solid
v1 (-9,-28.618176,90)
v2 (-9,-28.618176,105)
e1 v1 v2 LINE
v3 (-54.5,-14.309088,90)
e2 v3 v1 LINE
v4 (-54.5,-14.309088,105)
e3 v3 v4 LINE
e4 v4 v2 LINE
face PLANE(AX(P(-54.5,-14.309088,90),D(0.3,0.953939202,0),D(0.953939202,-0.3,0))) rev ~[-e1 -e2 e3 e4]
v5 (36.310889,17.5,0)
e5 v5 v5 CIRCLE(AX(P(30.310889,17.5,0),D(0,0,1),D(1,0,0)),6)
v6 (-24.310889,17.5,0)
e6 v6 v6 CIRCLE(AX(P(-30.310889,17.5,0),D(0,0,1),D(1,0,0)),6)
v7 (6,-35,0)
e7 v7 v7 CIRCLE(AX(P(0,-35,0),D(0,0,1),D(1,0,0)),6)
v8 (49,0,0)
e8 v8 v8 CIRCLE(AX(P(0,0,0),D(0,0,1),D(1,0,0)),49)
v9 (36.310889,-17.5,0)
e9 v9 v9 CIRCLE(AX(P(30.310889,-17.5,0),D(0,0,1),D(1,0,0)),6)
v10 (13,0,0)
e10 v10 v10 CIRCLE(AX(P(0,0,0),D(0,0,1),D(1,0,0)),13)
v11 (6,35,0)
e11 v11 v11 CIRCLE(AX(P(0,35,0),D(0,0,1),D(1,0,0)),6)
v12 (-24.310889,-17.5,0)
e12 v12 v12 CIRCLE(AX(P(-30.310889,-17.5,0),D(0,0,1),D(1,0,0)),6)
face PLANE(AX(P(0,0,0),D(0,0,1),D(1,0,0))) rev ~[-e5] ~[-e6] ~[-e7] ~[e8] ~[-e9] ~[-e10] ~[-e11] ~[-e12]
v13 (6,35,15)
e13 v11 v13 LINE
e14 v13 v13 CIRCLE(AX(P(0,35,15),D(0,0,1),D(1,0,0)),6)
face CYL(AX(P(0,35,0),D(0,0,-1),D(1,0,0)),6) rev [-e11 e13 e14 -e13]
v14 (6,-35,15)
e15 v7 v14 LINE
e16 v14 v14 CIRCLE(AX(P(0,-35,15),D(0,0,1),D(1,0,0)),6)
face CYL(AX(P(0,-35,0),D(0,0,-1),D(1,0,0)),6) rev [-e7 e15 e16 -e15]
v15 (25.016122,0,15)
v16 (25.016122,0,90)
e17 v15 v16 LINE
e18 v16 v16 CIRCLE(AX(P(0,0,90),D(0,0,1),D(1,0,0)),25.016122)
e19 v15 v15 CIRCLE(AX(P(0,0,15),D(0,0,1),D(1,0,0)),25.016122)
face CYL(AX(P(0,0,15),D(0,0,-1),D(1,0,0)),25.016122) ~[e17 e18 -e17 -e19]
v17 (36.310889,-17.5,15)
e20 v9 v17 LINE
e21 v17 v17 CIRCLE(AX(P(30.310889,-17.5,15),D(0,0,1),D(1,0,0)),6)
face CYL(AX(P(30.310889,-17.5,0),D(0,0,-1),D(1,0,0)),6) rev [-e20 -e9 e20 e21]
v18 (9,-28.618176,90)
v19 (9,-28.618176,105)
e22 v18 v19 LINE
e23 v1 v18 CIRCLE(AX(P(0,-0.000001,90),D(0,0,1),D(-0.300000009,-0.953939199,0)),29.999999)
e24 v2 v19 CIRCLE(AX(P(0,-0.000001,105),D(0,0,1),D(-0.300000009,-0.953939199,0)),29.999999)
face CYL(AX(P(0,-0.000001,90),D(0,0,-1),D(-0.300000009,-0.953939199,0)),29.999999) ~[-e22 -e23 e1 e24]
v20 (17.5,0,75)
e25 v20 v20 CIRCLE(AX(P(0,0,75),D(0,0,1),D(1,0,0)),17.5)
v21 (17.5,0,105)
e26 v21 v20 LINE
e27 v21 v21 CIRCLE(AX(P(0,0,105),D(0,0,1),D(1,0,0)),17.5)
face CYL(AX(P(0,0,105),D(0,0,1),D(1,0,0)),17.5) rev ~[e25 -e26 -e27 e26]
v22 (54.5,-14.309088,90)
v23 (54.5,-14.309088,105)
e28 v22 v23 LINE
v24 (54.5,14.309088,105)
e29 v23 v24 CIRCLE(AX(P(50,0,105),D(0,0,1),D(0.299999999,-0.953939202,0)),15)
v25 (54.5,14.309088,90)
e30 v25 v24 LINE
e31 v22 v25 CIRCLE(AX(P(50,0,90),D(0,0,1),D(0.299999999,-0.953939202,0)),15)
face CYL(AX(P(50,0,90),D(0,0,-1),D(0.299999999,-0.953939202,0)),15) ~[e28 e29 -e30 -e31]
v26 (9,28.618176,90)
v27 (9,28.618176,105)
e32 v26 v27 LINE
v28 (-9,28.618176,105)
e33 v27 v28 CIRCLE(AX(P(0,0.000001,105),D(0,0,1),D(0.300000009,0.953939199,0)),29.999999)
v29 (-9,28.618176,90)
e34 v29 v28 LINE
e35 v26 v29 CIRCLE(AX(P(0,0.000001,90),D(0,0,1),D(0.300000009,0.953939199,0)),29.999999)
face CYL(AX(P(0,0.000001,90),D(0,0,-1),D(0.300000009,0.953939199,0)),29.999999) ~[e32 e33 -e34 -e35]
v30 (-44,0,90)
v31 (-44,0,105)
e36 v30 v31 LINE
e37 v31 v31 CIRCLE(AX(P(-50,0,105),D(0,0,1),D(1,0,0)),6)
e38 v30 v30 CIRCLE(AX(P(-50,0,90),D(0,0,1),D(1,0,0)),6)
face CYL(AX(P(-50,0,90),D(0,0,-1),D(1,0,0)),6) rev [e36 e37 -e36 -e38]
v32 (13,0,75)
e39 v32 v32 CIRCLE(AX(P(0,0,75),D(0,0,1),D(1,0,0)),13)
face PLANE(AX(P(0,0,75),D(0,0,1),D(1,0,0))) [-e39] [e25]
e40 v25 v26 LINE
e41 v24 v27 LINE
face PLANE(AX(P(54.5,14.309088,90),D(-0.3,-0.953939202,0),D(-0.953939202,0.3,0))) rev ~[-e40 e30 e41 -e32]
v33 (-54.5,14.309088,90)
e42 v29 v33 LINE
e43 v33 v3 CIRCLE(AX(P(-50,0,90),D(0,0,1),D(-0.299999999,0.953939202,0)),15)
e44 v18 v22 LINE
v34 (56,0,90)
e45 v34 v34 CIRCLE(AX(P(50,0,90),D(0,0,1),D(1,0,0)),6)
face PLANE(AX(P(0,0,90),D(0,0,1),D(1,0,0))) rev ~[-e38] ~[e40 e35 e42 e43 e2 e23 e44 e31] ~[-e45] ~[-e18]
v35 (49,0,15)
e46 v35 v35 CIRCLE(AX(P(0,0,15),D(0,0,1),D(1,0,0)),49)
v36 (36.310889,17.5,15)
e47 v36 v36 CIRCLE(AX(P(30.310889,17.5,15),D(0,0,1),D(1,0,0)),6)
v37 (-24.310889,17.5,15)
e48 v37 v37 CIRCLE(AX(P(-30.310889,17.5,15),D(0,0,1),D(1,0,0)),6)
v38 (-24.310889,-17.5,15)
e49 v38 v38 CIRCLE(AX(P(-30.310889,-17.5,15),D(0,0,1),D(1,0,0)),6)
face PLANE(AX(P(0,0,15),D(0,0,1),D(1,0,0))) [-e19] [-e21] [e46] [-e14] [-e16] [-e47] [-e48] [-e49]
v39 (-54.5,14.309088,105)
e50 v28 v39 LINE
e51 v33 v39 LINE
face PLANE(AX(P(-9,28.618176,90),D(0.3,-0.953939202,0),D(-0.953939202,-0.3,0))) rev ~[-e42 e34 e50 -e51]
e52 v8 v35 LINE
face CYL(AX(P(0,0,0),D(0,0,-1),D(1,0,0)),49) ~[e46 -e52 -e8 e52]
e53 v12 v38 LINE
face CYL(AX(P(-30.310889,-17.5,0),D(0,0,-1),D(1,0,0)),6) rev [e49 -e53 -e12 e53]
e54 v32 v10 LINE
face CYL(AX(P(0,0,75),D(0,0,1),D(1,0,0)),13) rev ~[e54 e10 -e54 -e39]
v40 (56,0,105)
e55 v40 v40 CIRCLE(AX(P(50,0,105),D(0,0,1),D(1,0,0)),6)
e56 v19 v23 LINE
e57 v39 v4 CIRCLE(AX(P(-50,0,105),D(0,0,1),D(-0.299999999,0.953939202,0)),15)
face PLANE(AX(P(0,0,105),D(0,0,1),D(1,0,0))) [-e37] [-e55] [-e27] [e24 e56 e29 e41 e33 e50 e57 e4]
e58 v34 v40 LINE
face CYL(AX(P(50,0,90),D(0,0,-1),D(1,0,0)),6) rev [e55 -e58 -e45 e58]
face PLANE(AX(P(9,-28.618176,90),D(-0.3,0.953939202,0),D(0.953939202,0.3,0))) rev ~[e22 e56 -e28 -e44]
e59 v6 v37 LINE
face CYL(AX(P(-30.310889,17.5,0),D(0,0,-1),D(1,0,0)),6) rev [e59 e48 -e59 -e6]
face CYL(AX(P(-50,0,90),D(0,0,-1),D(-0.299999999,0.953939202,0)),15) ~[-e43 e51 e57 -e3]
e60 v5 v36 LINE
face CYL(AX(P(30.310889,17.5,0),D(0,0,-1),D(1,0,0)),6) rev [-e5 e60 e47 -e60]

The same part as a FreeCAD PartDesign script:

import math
import FreeCAD as App
import Part
import Sketcher

V = App.Vector
Q = App.Units.Quantity

doc = App.newDocument("Part")
params = doc.addObject("Spreadsheet::Sheet", "Params")
for row, (alias, value) in enumerate([
    ("sketch1_diameter", "98 mm"),
    ("sketch1_diameter2", "12 mm"),
    ("pad1_length", "15 mm"),
    ("pad2_length", "75 mm"),
    ("sketch3_diameter", "12 mm"),
    ("sketch3_radius", "15 mm"),
    ("sketch3_radius2", "29.999999 mm"),
    ("pad3_length", "15 mm"),
    ("sketch4_diameter", "35 mm"),
    ("pad4_length", "30 mm"),
    ("sketch5_diameter", "26 mm"),
    ("pad5_length", "150 mm"),
], start=1):
    params.set(f"A{row}", alias)
    params.set(f"B{row}", "=" + value)
    params.setAlias(f"B{row}", alias)

body = doc.addObject("PartDesign::Body", "Body")

sketch1 = body.newObject("Sketcher::SketchObject", "Sketch")
sketch1.AttachmentSupport = (doc.getObject("XY_Plane"), [""])
sketch1.MapMode = "FlatFace"
sketch1.addGeometry(Part.Circle(V(0, 0, 0), V(0, 0, 1), 49), False)
sketch1.addGeometry(Part.Circle(V(0, -35, 0), V(0, 0, 1), 6), False)
sketch1.addGeometry(Part.Circle(V(-30.310889, -17.5, 0), V(0, 0, 1), 6), False)
sketch1.addGeometry(Part.Circle(V(30.310889, -17.5, 0), V(0, 0, 1), 6), False)
sketch1.addGeometry(Part.Circle(V(-30.310889, 17.5, 0), V(0, 0, 1), 6), False)
sketch1.addGeometry(Part.Circle(V(0, 35, 0), V(0, 0, 1), 6), False)
sketch1.addGeometry(Part.Circle(V(30.310889, 17.5, 0), V(0, 0, 1), 6), False)
sketch1.addConstraint(Sketcher.Constraint("Coincident", 0, 3, -1, 1))
sketch1.addConstraint(Sketcher.Constraint("Equal", 1, 2))
sketch1.addConstraint(Sketcher.Constraint("Equal", 2, 3))
sketch1.addConstraint(Sketcher.Constraint("Equal", 3, 4))
sketch1.addConstraint(Sketcher.Constraint("Equal", 4, 5))
sketch1.addConstraint(Sketcher.Constraint("Equal", 5, 6))
sketch1.addConstraint(Sketcher.Constraint("Symmetric", 3, 3, 4, 3, -1, 1))
sketch1.addConstraint(Sketcher.Constraint("Symmetric", 1, 3, 5, 3, -1, 1))
sketch1.addConstraint(Sketcher.Constraint("Symmetric", 2, 3, 6, 3, -1, 1))
sketch1.addConstraint(Sketcher.Constraint("Symmetric", 2, 3, 3, 3, -2))
sketch1.addConstraint(Sketcher.Constraint("PointOnObject", 1, 3, -2))
sketch1.addConstraint(Sketcher.Constraint("Diameter", 0, Q("98 mm")))
sketch1.addConstraint(Sketcher.Constraint("Diameter", 1, Q("12 mm")))
sketch1.addConstraint(Sketcher.Constraint("DistanceY", 1, 3, -1, 1, Q("35 mm")))
sketch1.addConstraint(Sketcher.Constraint("DistanceY", 2, 3, 4, 3, Q("35 mm")))
sketch1.addConstraint(Sketcher.Constraint("DistanceX", 2, 3, -1, 1, Q("30.310889 mm")))
sketch1.setExpression("Constraints[11]", "Params.sketch1_diameter")
sketch1.setExpression("Constraints[12]", "Params.sketch1_diameter2")
pad1 = body.newObject("PartDesign::Pad", "Pad")
pad1.Profile = sketch1
pad1.setExpression("Length", "Params.pad1_length")

sketch2 = body.newObject("Sketcher::SketchObject", "Sketch001")
sketch2.AttachmentSupport = (doc.getObject("XY_Plane"), [""])
sketch2.MapMode = "FlatFace"
sketch2.AttachmentOffset = App.Placement(V(0, 0, 15), App.Rotation())
sketch2.addGeometry(Part.Circle(V(0, 0, 0), V(0, 0, 1), 25.016122), False)
sketch2.addConstraint(Sketcher.Constraint("Coincident", 0, 3, -1, 1))
sketch2.addConstraint(Sketcher.Constraint("Diameter", 0, Q("50.032244 mm")))
pad2 = body.newObject("PartDesign::Pad", "Pad001")
pad2.Profile = sketch2
pad2.setExpression("Length", "Params.pad2_length")

sketch3 = body.newObject("Sketcher::SketchObject", "Sketch002")
sketch3.AttachmentSupport = (doc.getObject("XY_Plane"), [""])
sketch3.MapMode = "FlatFace"
sketch3.AttachmentOffset = App.Placement(V(0, 0, 90), App.Rotation())
sketch3.addGeometry(Part.LineSegment(V(9, -28.618176, 0), V(54.5, -14.309088, 0)), False)
sketch3.addGeometry(Part.ArcOfCircle(Part.Circle(V(50, 0, 0), V(0, 0, 1), 15), math.radians(-72.542397), math.radians(72.542397)), False)
sketch3.addGeometry(Part.LineSegment(V(54.5, 14.309088, 0), V(9, 28.618176, 0)), False)
sketch3.addGeometry(Part.ArcOfCircle(Part.Circle(V(0, 0.000001, 0), V(0, 0, 1), 29.999999), math.radians(72.542396), math.radians(107.457604)), False)
sketch3.addGeometry(Part.LineSegment(V(-9, 28.618176, 0), V(-54.5, 14.309088, 0)), False)
sketch3.addGeometry(Part.ArcOfCircle(Part.Circle(V(-50, 0, 0), V(0, 0, 1), 15), math.radians(107.457603), math.radians(252.542397)), False)
sketch3.addGeometry(Part.LineSegment(V(-54.5, -14.309088, 0), V(-9, -28.618176, 0)), False)
sketch3.addGeometry(Part.ArcOfCircle(Part.Circle(V(0, -0.000001, 0), V(0, 0, 1), 29.999999), math.radians(-107.457604), math.radians(-72.542396)), False)
sketch3.addGeometry(Part.Circle(V(-50, 0, 0), V(0, 0, 1), 6), False)
sketch3.addGeometry(Part.Circle(V(50, 0, 0), V(0, 0, 1), 6), False)
sketch3.addConstraint(Sketcher.Constraint("Tangent", 0, 2, 1, 1))
sketch3.addConstraint(Sketcher.Constraint("Tangent", 1, 2, 2, 1))
sketch3.addConstraint(Sketcher.Constraint("Tangent", 2, 2, 3, 1))
sketch3.addConstraint(Sketcher.Constraint("Tangent", 3, 2, 4, 1))
sketch3.addConstraint(Sketcher.Constraint("Tangent", 4, 2, 5, 1))
sketch3.addConstraint(Sketcher.Constraint("Tangent", 5, 2, 6, 1))
sketch3.addConstraint(Sketcher.Constraint("Tangent", 6, 2, 7, 1))
sketch3.addConstraint(Sketcher.Constraint("Tangent", 7, 2, 0, 1))
sketch3.addConstraint(Sketcher.Constraint("Coincident", 3, 3, -1, 1))
sketch3.addConstraint(Sketcher.Constraint("Coincident", 7, 3, -1, 1))
sketch3.addConstraint(Sketcher.Constraint("Coincident", 8, 3, 5, 3))
sketch3.addConstraint(Sketcher.Constraint("Coincident", 9, 3, 1, 3))
sketch3.addConstraint(Sketcher.Constraint("Equal", 1, 5))
sketch3.addConstraint(Sketcher.Constraint("Equal", 3, 7))
sketch3.addConstraint(Sketcher.Constraint("Equal", 8, 9))
sketch3.addConstraint(Sketcher.Constraint("Symmetric", 1, 3, 5, 3, -1, 1))
sketch3.addConstraint(Sketcher.Constraint("PointOnObject", 1, 3, -1))
sketch3.addConstraint(Sketcher.Constraint("Diameter", 8, Q("12 mm")))
sketch3.addConstraint(Sketcher.Constraint("Radius", 1, Q("15 mm")))
sketch3.addConstraint(Sketcher.Constraint("Radius", 3, Q("29.999999 mm")))
sketch3.addConstraint(Sketcher.Constraint("DistanceX", -1, 1, 1, 3, Q("50 mm")))
sketch3.setExpression("Constraints[17]", "Params.sketch3_diameter")
sketch3.setExpression("Constraints[18]", "Params.sketch3_radius")
sketch3.setExpression("Constraints[19]", "Params.sketch3_radius2")
pad3 = body.newObject("PartDesign::Pad", "Pad002")
pad3.Profile = sketch3
pad3.setExpression("Length", "Params.pad3_length")
body2 = doc.addObject("PartDesign::Body", "Body001")

sketch4 = body2.newObject("Sketcher::SketchObject", "Sketch003")
sketch4.AttachmentSupport = (doc.getObject("XY_Plane001"), [""])
sketch4.MapMode = "FlatFace"
sketch4.AttachmentOffset = App.Placement(V(0, 0, 105), App.Rotation())
sketch4.addGeometry(Part.Circle(V(0, 0, 0), V(0, 0, 1), 17.5), False)
sketch4.addConstraint(Sketcher.Constraint("Coincident", 0, 3, -1, 1))
sketch4.addConstraint(Sketcher.Constraint("Diameter", 0, Q("35 mm")))
sketch4.setExpression("Constraints[1]", "Params.sketch4_diameter")
pad4 = body2.newObject("PartDesign::Pad", "Pad003")
pad4.Profile = sketch4
pad4.setExpression("Length", "Params.pad4_length")
pad4.Reversed = True
doc.recompute()

boolean = body.newObject("PartDesign::Boolean", "Boolean")
boolean.Type = "Cut"
boolean.addObjects([body2])
body3 = doc.addObject("PartDesign::Body", "Body002")

sketch5 = body3.newObject("Sketcher::SketchObject", "Sketch004")
sketch5.AttachmentSupport = (doc.getObject("XY_Plane002"), [""])
sketch5.MapMode = "FlatFace"
sketch5.AttachmentOffset = App.Placement(V(0, 0, 75), App.Rotation())
sketch5.addGeometry(Part.Circle(V(0, 0, 0), V(0, 0, 1), 13), False)
sketch5.addConstraint(Sketcher.Constraint("Coincident", 0, 3, -1, 1))
sketch5.addConstraint(Sketcher.Constraint("Diameter", 0, Q("26 mm")))
sketch5.setExpression("Constraints[1]", "Params.sketch5_diameter")
pad5 = body3.newObject("PartDesign::Pad", "Pad004")
pad5.Profile = sketch5
pad5.setExpression("Length", "Params.pad5_length")
pad5.Reversed = True
doc.recompute()

boolean2 = body.newObject("PartDesign::Boolean", "Boolean001")
boolean2.Type = "Cut"
boolean2.addObjects([body3])

doc.recompute()
